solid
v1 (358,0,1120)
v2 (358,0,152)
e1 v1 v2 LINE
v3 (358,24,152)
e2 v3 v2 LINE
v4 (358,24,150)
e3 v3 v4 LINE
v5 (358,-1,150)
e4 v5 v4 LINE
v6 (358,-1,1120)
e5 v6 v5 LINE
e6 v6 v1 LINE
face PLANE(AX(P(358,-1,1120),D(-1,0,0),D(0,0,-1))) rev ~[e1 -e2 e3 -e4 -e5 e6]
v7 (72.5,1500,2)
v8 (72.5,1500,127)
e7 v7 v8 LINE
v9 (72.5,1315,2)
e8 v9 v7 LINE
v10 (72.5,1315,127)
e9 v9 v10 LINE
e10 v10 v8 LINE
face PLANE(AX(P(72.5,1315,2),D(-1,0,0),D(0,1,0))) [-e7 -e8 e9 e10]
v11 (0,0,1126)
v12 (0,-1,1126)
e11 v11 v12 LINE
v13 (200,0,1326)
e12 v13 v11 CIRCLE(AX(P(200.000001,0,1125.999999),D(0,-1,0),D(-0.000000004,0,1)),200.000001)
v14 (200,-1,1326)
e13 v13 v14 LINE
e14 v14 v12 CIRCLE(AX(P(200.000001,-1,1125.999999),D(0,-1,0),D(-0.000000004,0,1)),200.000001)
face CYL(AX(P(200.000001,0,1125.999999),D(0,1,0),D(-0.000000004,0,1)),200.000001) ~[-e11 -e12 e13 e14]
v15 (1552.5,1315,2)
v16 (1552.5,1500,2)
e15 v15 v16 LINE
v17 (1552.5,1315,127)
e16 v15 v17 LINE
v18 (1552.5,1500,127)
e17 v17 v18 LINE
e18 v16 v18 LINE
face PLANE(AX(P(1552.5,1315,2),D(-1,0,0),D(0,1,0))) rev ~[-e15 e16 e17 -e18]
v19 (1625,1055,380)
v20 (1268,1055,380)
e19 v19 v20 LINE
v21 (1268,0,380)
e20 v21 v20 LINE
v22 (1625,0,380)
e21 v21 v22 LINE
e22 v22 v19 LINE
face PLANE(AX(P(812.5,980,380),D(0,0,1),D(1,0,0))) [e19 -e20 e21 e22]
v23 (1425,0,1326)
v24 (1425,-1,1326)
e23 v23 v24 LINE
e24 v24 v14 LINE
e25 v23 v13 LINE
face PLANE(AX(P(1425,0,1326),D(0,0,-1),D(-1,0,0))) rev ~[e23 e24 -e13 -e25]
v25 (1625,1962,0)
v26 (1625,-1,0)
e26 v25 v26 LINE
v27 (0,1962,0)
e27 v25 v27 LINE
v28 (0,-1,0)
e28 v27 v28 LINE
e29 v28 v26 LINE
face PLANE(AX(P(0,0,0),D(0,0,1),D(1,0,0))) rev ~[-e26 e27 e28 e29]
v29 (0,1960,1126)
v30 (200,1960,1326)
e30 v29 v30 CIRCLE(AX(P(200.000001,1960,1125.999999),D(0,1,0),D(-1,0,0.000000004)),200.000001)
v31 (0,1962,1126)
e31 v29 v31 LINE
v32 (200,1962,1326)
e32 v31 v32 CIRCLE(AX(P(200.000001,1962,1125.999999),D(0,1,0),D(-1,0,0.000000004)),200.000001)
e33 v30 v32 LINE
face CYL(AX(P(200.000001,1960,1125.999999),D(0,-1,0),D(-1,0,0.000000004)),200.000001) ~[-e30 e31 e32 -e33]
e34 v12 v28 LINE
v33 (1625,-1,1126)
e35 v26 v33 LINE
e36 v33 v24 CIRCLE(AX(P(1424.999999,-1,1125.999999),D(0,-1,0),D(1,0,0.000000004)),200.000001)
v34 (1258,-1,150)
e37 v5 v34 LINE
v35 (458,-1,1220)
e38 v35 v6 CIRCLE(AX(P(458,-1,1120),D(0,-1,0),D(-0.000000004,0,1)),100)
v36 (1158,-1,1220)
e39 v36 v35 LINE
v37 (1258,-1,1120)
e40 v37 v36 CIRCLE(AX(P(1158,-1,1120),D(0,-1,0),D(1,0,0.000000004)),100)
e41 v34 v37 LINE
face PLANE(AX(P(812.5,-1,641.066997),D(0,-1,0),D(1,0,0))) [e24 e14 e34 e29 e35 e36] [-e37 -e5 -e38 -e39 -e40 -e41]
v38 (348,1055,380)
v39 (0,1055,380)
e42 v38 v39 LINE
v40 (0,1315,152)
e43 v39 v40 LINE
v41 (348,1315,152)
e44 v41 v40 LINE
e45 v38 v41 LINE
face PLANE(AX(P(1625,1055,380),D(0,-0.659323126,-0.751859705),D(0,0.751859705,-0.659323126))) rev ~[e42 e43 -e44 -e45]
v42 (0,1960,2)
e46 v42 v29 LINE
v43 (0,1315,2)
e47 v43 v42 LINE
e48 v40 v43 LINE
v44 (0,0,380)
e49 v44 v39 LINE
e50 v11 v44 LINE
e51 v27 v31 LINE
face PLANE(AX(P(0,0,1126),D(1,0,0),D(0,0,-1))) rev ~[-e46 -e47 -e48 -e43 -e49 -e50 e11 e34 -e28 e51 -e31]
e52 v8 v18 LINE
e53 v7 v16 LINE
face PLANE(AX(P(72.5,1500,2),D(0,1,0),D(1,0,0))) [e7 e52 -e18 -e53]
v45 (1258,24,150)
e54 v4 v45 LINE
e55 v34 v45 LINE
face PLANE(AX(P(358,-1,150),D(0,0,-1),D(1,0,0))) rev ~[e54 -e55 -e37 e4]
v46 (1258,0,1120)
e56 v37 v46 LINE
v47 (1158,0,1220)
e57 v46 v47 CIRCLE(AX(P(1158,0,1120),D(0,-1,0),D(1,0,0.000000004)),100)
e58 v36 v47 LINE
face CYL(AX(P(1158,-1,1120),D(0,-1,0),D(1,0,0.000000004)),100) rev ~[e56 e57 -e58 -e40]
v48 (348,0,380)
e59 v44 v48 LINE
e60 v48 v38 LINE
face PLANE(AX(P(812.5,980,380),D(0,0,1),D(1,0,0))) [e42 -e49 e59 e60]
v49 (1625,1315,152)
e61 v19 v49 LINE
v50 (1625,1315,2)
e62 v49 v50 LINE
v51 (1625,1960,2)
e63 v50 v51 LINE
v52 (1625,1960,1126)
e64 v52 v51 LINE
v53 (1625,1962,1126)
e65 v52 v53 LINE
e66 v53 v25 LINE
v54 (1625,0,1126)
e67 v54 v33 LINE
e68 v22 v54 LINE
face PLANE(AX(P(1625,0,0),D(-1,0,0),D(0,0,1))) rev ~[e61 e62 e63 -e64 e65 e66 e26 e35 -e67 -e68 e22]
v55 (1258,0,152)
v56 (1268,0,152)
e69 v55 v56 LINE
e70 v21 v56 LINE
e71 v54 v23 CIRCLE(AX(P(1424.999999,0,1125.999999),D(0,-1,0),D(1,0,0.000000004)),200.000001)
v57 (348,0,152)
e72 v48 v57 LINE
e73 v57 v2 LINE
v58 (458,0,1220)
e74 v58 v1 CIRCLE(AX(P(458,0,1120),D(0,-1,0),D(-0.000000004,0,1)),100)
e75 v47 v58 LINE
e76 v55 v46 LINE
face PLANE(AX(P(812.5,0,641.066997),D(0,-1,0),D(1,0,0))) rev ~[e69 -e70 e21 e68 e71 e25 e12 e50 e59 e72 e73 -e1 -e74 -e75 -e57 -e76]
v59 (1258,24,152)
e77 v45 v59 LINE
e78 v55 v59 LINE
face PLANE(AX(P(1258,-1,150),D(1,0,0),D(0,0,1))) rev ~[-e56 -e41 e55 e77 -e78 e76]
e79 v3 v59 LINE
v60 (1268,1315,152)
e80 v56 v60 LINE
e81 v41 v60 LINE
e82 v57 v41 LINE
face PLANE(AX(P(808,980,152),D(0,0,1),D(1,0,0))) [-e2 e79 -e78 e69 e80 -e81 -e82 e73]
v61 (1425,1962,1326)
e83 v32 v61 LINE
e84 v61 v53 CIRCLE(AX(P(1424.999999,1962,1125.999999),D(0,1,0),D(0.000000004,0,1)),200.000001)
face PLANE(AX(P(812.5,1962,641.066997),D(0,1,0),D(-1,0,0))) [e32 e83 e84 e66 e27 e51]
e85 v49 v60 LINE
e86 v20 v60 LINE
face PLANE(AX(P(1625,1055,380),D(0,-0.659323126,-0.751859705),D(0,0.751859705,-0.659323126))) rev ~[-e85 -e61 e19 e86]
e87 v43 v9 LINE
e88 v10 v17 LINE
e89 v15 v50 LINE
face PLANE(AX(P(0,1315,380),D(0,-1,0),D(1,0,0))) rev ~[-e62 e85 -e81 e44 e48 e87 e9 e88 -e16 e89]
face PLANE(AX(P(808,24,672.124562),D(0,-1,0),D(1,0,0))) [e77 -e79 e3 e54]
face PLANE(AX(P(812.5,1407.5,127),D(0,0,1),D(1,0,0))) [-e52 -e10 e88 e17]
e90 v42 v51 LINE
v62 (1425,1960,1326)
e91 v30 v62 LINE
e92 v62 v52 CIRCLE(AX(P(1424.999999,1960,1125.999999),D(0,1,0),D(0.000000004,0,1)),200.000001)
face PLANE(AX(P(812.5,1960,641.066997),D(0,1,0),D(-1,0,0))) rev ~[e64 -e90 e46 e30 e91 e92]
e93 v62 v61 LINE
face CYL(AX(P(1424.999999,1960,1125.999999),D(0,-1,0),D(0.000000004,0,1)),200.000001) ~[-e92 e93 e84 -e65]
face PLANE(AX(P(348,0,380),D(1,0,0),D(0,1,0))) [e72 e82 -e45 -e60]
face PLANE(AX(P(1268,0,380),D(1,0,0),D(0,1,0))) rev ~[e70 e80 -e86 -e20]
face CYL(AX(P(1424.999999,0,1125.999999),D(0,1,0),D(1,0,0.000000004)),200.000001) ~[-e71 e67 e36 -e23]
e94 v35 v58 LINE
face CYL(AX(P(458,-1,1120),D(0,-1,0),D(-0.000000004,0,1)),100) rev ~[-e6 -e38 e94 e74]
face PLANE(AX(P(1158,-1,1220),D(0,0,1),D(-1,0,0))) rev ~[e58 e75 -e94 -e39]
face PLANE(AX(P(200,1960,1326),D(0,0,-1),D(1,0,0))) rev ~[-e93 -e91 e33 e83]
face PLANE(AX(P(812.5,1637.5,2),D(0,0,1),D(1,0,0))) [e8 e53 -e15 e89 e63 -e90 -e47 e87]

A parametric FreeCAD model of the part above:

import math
import FreeCAD as App
import Part
import Sketcher

V = App.Vector
Q = App.Units.Quantity


def add_polygon(sketch, points):
    """Adds a closed chain of lines whose ends are joined by coincident constraints."""
    first, n = sketch.GeometryCount, len(points)
    for a, b in zip(points, points[1:] + points[:1]):
        sketch.addGeometry(Part.LineSegment(App.Vector(*a, 0), App.Vector(*b, 0)), False)
    for i in range(n):
        sketch.addConstraint(Sketcher.Constraint("Coincident", first + i, 2, first + (i + 1) % n, 1))

doc = App.newDocument("Part")
body = doc.addObject("PartDesign::Body", "Body")

sketch1 = doc.addObject("Sketcher::SketchObject", "Sketch")
body.addObject(sketch1)
sketch1.AttachmentSupport = (doc.XY_Plane, [""])
sketch1.MapMode = "FlatFace"
add_polygon(sketch1, [(0, 1960), (0, 0), (1625, 0), (1625, 1960)])
sketch1.addConstraint([
    Sketcher.Constraint("Vertical", 0),
    Sketcher.Constraint("Horizontal", 1),
    Sketcher.Constraint("Vertical", 2),
    Sketcher.Constraint("Horizontal", 3),
    Sketcher.Constraint("Coincident", 0, 2, -1, 1),
    Sketcher.Constraint("DistanceX", 1, 1, 1, 2, Q("1625 mm")),
    Sketcher.Constraint("DistanceY", 0, 2, 0, 1, Q("1960 mm")),
])
pad1 = doc.addObject("PartDesign::Pad", "Pad")
body.addObject(pad1)
pad1.Profile = sketch1
pad1.Length = 380

sketch2 = doc.addObject("Sketcher::SketchObject", "Sketch001")
body.addObject(sketch2)
sketch2.AttachmentSupport = (doc.XY_Plane, [""])
sketch2.MapMode = "FlatFace"
sketch2.AttachmentOffset = App.Placement(V(0, 0, 380), App.Rotation())
add_polygon(sketch2, [(348, 1960), (348, 0), (1268, 0), (1268, 1960)])
sketch2.addConstraint([
    Sketcher.Constraint("Vertical", 0),
    Sketcher.Constraint("Horizontal", 1),
    Sketcher.Constraint("Vertical", 2),
    Sketcher.Constraint("Horizontal", 3),
    Sketcher.Constraint("PointOnObject", 0, 2, -1),
    Sketcher.Constraint("DistanceX", 1, 1, 1, 2, Q("920 mm")),
    Sketcher.Constraint("DistanceY", 0, 2, 0, 1, Q("1960 mm")),
    Sketcher.Constraint("DistanceX", -1, 1, 0, 2, Q("348 mm")),
])
pocket1 = doc.addObject("PartDesign::Pocket", "Pocket")
body.addObject(pocket1)
pocket1.Profile = sketch2
pocket1.Length = 228

sketch3 = doc.addObject("Sketcher::SketchObject", "Sketch002")
body.addObject(sketch3)
sketch3.AttachmentSupport = (doc.XY_Plane, [""])
sketch3.MapMode = "FlatFace"
sketch3.AttachmentOffset = App.Placement(V(0, 0, 380), App.Rotation())
add_polygon(sketch3, [(0, 1960), (0, 1315), (1625, 1315), (1625, 1960)])
sketch3.addConstraint([
    Sketcher.Constraint("Vertical", 0),
    Sketcher.Constraint("Horizontal", 1),
    Sketcher.Constraint("Vertical", 2),
    Sketcher.Constraint("Horizontal", 3),
    Sketcher.Constraint("PointOnObject", 0, 2, -2),
    Sketcher.Constraint("DistanceX", 1, 1, 1, 2, Q("1625 mm")),
    Sketcher.Constraint("DistanceY", 0, 2, 0, 1, Q("645 mm")),
    Sketcher.Constraint("DistanceY", -1, 1, 0, 2, Q("1315 mm")),
])
pocket2 = doc.addObject("PartDesign::Pocket", "Pocket001")
body.addObject(pocket2)
pocket2.Profile = sketch3
pocket2.Length = 378

sketch4 = doc.addObject("Sketcher::SketchObject", "Sketch003")
body.addObject(sketch4)
sketch4.AttachmentSupport = (doc.XY_Plane, [""])
sketch4.MapMode = "FlatFace"
sketch4.AttachmentOffset = App.Placement(V(0, 0, 2), App.Rotation())
add_polygon(sketch4, [(72, 1500), (72, 1315), (1552, 1315), (1552, 1500)])
sketch4.addConstraint([
    Sketcher.Constraint("Vertical", 0),
    Sketcher.Constraint("Horizontal", 1),
    Sketcher.Constraint("Vertical", 2),
    Sketcher.Constraint("Horizontal", 3),
    Sketcher.Constraint("DistanceX", 1, 1, 1, 2, Q("1480 mm")),
    Sketcher.Constraint("DistanceY", 0, 2, 0, 1, Q("185 mm")),
    Sketcher.Constraint("DistanceY", -1, 1, 0, 2, Q("1315 mm")),
    Sketcher.Constraint("DistanceX", -1, 1, 0, 2, Q("72.5 mm")),
])
pad2 = doc.addObject("PartDesign::Pad", "Pad001")
body.addObject(pad2)
pad2.Profile = sketch4
pad2.Length = 125

sketch5 = doc.addObject("Sketcher::SketchObject", "Sketch004")
body.addObject(sketch5)
sketch5.AttachmentSupport = (doc.XZ_Plane, [""])
sketch5.MapMode = "FlatFace"
sketch5.AttachmentOffset = App.Placement(V(0, 0, -1960), App.Rotation())
sketch5.addGeometry([
    Part.LineSegment(V(1625, 1126, 0), V(1625, 0, 0)),
    Part.LineSegment(V(1625, 0, 0), V(0, 0, 0)),
    Part.LineSegment(V(0, 0, 0), V(0, 1126, 0)),
    Part.ArcOfCircle(Part.Circle(V(200, 1126, 0), V(0, 0, 1), 200), math.radians(90), math.radians(180)),
    Part.LineSegment(V(200, 1326, 0), V(1425, 1326, 0)),
    Part.ArcOfCircle(Part.Circle(V(1425, 1126, 0), V(0, 0, 1), 200), math.radians(0), math.radians(90)),
], False)
sketch5.addConstraint([
    Sketcher.Constraint("Coincident", 0, 2, 1, 1),
    Sketcher.Constraint("Coincident", 1, 2, 2, 1),
    Sketcher.Constraint("Tangent", 2, 2, 3, 2),
    Sketcher.Constraint("Tangent", 3, 1, 4, 1),
    Sketcher.Constraint("Tangent", 4, 2, 5, 2),
    Sketcher.Constraint("Tangent", 5, 1, 0, 1),
    Sketcher.Constraint("Vertical", 0),
    Sketcher.Constraint("Horizontal", 1),
    Sketcher.Constraint("Vertical", 2),
    Sketcher.Constraint("Horizontal", 4),
    Sketcher.Constraint("Coincident", 1, 2, -1, 1),
    Sketcher.Constraint("Equal", 3, 5),
    Sketcher.Constraint("Radius", 3, Q("200.000001 mm")),
    Sketcher.Constraint("DistanceX", 1, 2, 1, 1, Q("1625 mm")),
    Sketcher.Constraint("DistanceY", 0, 2, 0, 1, Q("1126 mm")),
])
pad3 = doc.addObject("PartDesign::Pad", "Pad002")
body.addObject(pad3)
pad3.Profile = sketch5
pad3.Length = 2
pad3.Reversed = True

sketch6 = doc.addObject("Sketcher::SketchObject", "Sketch005")
body.addObject(sketch6)
sketch6.AttachmentSupport = (doc.XZ_Plane, [""])
sketch6.MapMode = "FlatFace"
sketch6.addGeometry([
    Part.LineSegment(V(0, 1126, 0), V(0, 0, 0)),
    Part.LineSegment(V(0, 0, 0), V(1625, 0, 0)),
    Part.LineSegment(V(1625, 0, 0), V(1625, 1126, 0)),
    Part.ArcOfCircle(Part.Circle(V(1425, 1126, 0), V(0, 0, 1), 200), math.radians(0), math.radians(90)),
    Part.LineSegment(V(1425, 1326, 0), V(200, 1326, 0)),
    Part.ArcOfCircle(Part.Circle(V(200, 1126, 0), V(0, 0, 1), 200), math.radians(90), math.radians(180)),
], False)
sketch6.addConstraint([
    Sketcher.Constraint("Coincident", 0, 2, 1, 1),
    Sketcher.Constraint("Coincident", 1, 2, 2, 1),
    Sketcher.Constraint("Tangent", 2, 2, 3, 1),
    Sketcher.Constraint("Tangent", 3, 2, 4, 1),
    Sketcher.Constraint("Tangent", 4, 2, 5, 1),
    Sketcher.Constraint("Tangent", 5, 2, 0, 1),
    Sketcher.Constraint("Vertical", 0),
    Sketcher.Constraint("Horizontal", 1),
    Sketcher.Constraint("Vertical", 2),
    Sketcher.Constraint("Horizontal", 4),
    Sketcher.Constraint("Coincident", 0, 2, -1, 1),
    Sketcher.Constraint("Equal", 3, 5),
    Sketcher.Constraint("Radius", 3, Q("200.000001 mm")),
    Sketcher.Constraint("DistanceX", 1, 1, 1, 2, Q("1625 mm")),
    Sketcher.Constraint("DistanceY", 0, 2, 0, 1, Q("1126 mm")),
])
pad4 = doc.addObject("PartDesign::Pad", "Pad003")
body.addObject(pad4)
pad4.Profile = sketch6
pad4.Length = 1

sketch7 = doc.addObject("Sketcher::SketchObject", "Sketch006")
body.addObject(sketch7)
sketch7.AttachmentSupport = (doc.XZ_Plane, [""])
sketch7.MapMode = "FlatFace"
sketch7.AttachmentOffset = App.Placement(V(0, 0, 1), App.Rotation())
sketch7.addGeometry([
    Part.LineSegment(V(358, 1120, 0), V(358, 150, 0)),
    Part.LineSegment(V(358, 150, 0), V(1258, 150, 0)),
    Part.LineSegment(V(1258, 150, 0), V(1258, 1120, 0)),
    Part.ArcOfCircle(Part.Circle(V(1158, 1120, 0), V(0, 0, 1), 100), math.radians(0), math.radians(90)),
    Part.LineSegment(V(1158, 1220, 0), V(458, 1220, 0)),
    Part.ArcOfCircle(Part.Circle(V(458, 1120, 0), V(0, 0, 1), 100), math.radians(90), math.radians(180)),
], False)
sketch7.addConstraint([
    Sketcher.Constraint("Coincident", 0, 2, 1, 1),
    Sketcher.Constraint("Coincident", 1, 2, 2, 1),
    Sketcher.Constraint("Tangent", 2, 2, 3, 1),
    Sketcher.Constraint("Tangent", 3, 2, 4, 1),
    Sketcher.Constraint("Tangent", 4, 2, 5, 1),
    Sketcher.Constraint("Tangent", 5, 2, 0, 1),
    Sketcher.Constraint("Vertical", 0),
    Sketcher.Constraint("Horizontal", 1),
    Sketcher.Constraint("Vertical", 2),
    Sketcher.Constraint("Horizontal", 4),
    Sketcher.Constraint("Equal", 3, 5),
    Sketcher.Constraint("Radius", 3, Q("100 mm")),
    Sketcher.Constraint("DistanceX", 1, 1, 1, 2, Q("900 mm")),
    Sketcher.Constraint("DistanceY", 0, 2, 0, 1, Q("970 mm")),
    Sketcher.Constraint("DistanceX", -1, 1, 3, 3, Q("1158 mm")),
    Sketcher.Constraint("DistanceY", -1, 1, 3, 3, Q("1120 mm")),
])
pocket3 = doc.addObject("PartDesign::Pocket", "Pocket002")
body.addObject(pocket3)
pocket3.Profile = sketch7
pocket3.Length = 25

sketch8 = doc.addObject("Sketcher::SketchObject", "Sketch007")
body.addObject(sketch8)
sketch8.AttachmentSupport = (doc.YZ_Plane, [""])
sketch8.MapMode = "FlatFace"
sketch8.AttachmentOffset = App.Placement(V(0, 0, 1625), App.Rotation())
add_polygon(sketch8, [(1315, 380), (1055, 380), (1315, 152)])
sketch8.addConstraint([
    Sketcher.Constraint("Horizontal", 0),
    Sketcher.Constraint("Vertical", 2),
    Sketcher.Constraint("DistanceX", 0, 2, 0, 1, Q("260 mm")),
    Sketcher.Constraint("DistanceY", 2, 1, 2, 2, Q("228 mm")),
    Sketcher.Constraint("DistanceX", -1, 1, 0, 2, Q("1055 mm")),
    Sketcher.Constraint("DistanceY", -1, 1, 0, 2, Q("380 mm")),
])
pocket4 = doc.addObject("PartDesign::Pocket", "Pocket003")
body.addObject(pocket4)
pocket4.Profile = sketch8
pocket4.Type = "ThroughAll"

doc.recompute()
